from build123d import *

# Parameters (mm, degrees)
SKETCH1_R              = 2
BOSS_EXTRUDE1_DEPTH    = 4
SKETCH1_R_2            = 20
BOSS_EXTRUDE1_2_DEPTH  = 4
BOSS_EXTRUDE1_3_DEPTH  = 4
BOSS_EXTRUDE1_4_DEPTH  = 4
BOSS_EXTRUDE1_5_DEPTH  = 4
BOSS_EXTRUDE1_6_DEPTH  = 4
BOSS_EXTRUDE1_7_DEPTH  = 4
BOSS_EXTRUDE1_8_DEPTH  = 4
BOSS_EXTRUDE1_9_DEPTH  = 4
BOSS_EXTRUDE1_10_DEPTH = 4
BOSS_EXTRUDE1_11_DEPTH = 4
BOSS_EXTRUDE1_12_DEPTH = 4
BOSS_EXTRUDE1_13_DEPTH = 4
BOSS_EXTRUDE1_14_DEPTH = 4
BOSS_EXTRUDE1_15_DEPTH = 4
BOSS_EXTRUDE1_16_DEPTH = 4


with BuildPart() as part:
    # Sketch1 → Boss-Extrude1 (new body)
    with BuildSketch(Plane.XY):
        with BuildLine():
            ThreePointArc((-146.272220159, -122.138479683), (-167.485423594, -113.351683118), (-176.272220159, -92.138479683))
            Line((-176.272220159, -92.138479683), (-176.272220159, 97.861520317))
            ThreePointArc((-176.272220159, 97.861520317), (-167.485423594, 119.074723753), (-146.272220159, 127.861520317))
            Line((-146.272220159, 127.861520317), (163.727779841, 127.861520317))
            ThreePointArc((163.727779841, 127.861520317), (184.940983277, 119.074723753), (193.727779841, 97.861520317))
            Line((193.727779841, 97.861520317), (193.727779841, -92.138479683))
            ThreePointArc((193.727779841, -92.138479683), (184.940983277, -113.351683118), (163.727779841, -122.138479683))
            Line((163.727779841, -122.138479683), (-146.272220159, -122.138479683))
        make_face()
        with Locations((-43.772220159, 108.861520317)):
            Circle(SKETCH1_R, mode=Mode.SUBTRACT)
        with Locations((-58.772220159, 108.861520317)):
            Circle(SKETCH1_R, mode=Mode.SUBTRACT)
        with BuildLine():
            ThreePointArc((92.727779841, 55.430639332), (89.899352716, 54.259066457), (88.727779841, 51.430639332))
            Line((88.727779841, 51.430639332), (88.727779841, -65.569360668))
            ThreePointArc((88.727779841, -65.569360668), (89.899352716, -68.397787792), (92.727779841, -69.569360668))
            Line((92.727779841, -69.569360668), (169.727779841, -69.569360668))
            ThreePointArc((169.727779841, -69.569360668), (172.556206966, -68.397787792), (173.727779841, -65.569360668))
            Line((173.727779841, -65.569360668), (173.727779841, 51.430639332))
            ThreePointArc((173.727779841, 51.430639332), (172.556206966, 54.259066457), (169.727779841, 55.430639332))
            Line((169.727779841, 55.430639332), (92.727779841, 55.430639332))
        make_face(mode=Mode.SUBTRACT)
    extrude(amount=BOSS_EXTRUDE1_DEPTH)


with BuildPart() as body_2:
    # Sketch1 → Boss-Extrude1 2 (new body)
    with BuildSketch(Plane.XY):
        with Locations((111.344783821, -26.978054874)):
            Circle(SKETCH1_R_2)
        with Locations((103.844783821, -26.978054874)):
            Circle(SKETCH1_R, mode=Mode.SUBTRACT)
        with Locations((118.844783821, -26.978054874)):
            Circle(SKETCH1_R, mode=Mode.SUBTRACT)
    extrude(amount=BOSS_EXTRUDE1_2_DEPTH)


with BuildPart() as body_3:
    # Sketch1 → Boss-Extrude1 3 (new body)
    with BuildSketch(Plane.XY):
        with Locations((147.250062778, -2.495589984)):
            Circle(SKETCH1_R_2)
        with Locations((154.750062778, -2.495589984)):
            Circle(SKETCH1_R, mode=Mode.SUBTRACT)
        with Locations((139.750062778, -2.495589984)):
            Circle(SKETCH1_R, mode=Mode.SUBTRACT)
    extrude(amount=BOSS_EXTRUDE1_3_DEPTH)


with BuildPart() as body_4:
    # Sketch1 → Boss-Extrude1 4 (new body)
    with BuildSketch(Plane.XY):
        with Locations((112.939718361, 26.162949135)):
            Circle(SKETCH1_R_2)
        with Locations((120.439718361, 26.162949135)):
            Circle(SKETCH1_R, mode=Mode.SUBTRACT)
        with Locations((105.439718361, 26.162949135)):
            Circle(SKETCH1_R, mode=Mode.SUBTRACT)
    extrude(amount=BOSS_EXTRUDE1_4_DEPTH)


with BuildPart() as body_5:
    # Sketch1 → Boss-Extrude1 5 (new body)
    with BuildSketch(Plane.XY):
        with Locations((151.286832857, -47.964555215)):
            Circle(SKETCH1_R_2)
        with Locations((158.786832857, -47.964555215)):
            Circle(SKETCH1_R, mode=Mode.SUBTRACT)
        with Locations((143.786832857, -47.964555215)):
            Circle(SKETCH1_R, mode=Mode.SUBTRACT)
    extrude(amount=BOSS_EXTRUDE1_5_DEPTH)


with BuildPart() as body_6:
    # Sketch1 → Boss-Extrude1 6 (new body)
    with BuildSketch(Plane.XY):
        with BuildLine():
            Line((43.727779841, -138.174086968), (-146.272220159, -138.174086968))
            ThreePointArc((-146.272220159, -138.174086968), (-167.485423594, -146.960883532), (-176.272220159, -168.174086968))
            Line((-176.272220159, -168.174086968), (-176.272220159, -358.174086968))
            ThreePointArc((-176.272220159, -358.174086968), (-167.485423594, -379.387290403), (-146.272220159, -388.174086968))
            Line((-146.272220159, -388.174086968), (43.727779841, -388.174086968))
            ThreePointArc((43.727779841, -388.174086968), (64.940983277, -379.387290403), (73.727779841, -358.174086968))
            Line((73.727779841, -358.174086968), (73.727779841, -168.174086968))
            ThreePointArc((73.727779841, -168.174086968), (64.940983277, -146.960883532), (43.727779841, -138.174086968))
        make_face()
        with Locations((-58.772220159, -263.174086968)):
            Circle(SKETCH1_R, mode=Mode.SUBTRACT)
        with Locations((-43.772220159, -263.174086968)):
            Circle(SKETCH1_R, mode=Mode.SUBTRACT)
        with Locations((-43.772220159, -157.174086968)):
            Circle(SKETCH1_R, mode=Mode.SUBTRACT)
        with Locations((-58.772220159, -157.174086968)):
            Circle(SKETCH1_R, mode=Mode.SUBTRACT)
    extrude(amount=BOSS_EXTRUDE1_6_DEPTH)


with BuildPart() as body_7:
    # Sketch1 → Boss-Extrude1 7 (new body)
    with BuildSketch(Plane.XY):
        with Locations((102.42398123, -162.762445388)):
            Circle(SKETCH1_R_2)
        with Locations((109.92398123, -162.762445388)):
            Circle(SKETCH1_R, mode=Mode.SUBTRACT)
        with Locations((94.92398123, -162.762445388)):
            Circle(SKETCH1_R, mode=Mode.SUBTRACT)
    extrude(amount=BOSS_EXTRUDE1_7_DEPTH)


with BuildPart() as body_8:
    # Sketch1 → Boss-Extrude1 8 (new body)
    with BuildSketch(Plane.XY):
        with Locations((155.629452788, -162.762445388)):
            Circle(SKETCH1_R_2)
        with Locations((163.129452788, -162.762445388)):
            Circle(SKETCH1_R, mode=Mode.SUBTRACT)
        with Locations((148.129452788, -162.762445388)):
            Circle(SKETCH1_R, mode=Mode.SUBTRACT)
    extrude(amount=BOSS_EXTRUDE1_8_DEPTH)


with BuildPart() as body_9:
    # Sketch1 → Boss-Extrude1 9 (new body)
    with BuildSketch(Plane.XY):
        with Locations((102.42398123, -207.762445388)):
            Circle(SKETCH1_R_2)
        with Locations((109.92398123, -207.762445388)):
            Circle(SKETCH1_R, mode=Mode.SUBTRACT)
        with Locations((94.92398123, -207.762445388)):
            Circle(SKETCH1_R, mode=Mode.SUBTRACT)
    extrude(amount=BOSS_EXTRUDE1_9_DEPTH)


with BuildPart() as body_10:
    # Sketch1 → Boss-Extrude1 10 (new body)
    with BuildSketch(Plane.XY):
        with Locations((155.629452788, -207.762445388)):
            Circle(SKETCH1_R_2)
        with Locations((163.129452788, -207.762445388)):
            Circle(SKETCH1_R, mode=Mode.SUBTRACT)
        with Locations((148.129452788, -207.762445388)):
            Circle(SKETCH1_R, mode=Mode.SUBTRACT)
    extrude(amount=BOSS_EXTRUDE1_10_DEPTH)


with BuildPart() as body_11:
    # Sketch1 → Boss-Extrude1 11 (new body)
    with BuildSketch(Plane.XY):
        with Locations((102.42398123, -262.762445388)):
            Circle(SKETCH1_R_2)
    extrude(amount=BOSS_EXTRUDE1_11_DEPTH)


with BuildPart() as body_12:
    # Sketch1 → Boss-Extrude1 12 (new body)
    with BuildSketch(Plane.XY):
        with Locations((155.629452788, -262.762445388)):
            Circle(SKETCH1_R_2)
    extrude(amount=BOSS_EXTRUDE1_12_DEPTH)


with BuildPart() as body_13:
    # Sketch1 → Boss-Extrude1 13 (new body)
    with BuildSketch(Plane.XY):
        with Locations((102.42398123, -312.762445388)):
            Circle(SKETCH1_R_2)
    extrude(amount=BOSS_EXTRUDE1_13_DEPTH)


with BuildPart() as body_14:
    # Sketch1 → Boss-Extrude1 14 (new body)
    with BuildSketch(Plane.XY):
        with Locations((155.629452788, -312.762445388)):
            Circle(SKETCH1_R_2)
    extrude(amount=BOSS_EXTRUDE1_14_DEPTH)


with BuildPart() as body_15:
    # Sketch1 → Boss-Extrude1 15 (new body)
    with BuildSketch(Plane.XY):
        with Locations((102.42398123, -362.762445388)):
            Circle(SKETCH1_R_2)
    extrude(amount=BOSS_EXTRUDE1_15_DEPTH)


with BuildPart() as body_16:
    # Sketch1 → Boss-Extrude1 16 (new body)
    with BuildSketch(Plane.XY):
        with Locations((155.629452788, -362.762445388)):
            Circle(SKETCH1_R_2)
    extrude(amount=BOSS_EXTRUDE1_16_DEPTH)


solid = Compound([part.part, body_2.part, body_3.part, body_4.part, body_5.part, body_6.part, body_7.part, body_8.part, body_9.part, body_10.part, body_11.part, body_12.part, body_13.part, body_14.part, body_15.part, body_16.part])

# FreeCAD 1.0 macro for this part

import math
import FreeCAD as App
import Part
import Sketcher
from FreeCAD import Vector

doc = App.newDocument("Part")
body = doc.addObject("PartDesign::Body", "Body")

# Sketch on XY plane
sketch1 = body.newObject("Sketcher::SketchObject", "Sketch")
sketch1.AttachmentSupport = (doc.getObject("XY_Plane"), [""])
sketch1.MapMode = "FlatFace"
sketch1.addGeometry(Part.ArcOfCircle(Part.Circle(Vector(-146.27222, -92.13848, 0), Vector(0, 0, 1), 30), math.radians(-180), math.radians(-90)), False)
sketch1.addGeometry(Part.LineSegment(Vector(-146.27222, -122.13848, 0), Vector(163.72778, -122.13848, 0)), False)
sketch1.addGeometry(Part.ArcOfCircle(Part.Circle(Vector(163.72778, -92.13848, 0), Vector(0, 0, 1), 30), math.radians(-90), math.radians(0)), False)
sketch1.addGeometry(Part.LineSegment(Vector(193.72778, -92.13848, 0), Vector(193.72778, 97.86152, 0)), False)
sketch1.addGeometry(Part.ArcOfCircle(Part.Circle(Vector(163.72778, 97.86152, 0), Vector(0, 0, 1), 30), math.radians(0), math.radians(90)), False)
sketch1.addGeometry(Part.LineSegment(Vector(163.72778, 127.86152, 0), Vector(-146.27222, 127.86152, 0)), False)
sketch1.addGeometry(Part.ArcOfCircle(Part.Circle(Vector(-146.27222, 97.86152, 0), Vector(0, 0, 1), 30), math.radians(90), math.radians(180)), False)
sketch1.addGeometry(Part.LineSegment(Vector(-176.27222, 97.86152, 0), Vector(-176.27222, -92.13848, 0)), False)
sketch1.addGeometry(Part.LineSegment(Vector(92.72778, 55.430639, 0), Vector(169.72778, 55.430639, 0)), False)
sketch1.addGeometry(Part.ArcOfCircle(Part.Circle(Vector(169.72778, 51.430639, 0), Vector(0, 0, 1), 4), math.radians(0), math.radians(90)), False)
sketch1.addGeometry(Part.LineSegment(Vector(173.72778, 51.430639, 0), Vector(173.72778, -65.569361, 0)), False)
sketch1.addGeometry(Part.ArcOfCircle(Part.Circle(Vector(169.72778, -65.569361, 0), Vector(0, 0, 1), 4), math.radians(-90), math.radians(0)), False)
sketch1.addGeometry(Part.LineSegment(Vector(169.72778, -69.569361, 0), Vector(92.72778, -69.569361, 0)), False)
sketch1.addGeometry(Part.ArcOfCircle(Part.Circle(Vector(92.72778, -65.569361, 0), Vector(0, 0, 1), 4), math.radians(-180), math.radians(-90)), False)
sketch1.addGeometry(Part.LineSegment(Vector(88.72778, -65.569361, 0), Vector(88.72778, 51.430639, 0)), False)
sketch1.addGeometry(Part.ArcOfCircle(Part.Circle(Vector(92.72778, 51.430639, 0), Vector(0, 0, 1), 4), math.radians(90), math.radians(180)), False)
sketch1.addGeometry(Part.Circle(Vector(-43.77222, 108.86152, 0), Vector(0, 0, 1), 2), False)
sketch1.addGeometry(Part.Circle(Vector(-58.77222, 108.86152, 0), Vector(0, 0, 1), 2), False)
sketch1.addConstraint(Sketcher.Constraint("Tangent", 0, 2, 1, 1))
sketch1.addConstraint(Sketcher.Constraint("Tangent", 1, 2, 2, 1))
sketch1.addConstraint(Sketcher.Constraint("Tangent", 2, 2, 3, 1))
sketch1.addConstraint(Sketcher.Constraint("Tangent", 3, 2, 4, 1))
sketch1.addConstraint(Sketcher.Constraint("Tangent", 4, 2, 5, 1))
sketch1.addConstraint(Sketcher.Constraint("Tangent", 5, 2, 6, 1))
sketch1.addConstraint(Sketcher.Constraint("Tangent", 6, 2, 7, 1))
sketch1.addConstraint(Sketcher.Constraint("Tangent", 7, 2, 0, 1))
sketch1.addConstraint(Sketcher.Constraint("Tangent", 8, 2, 9, 2))
sketch1.addConstraint(Sketcher.Constraint("Tangent", 9, 1, 10, 1))
sketch1.addConstraint(Sketcher.Constraint("Tangent", 10, 2, 11, 2))
sketch1.addConstraint(Sketcher.Constraint("Tangent", 11, 1, 12, 1))
sketch1.addConstraint(Sketcher.Constraint("Tangent", 12, 2, 13, 2))
sketch1.addConstraint(Sketcher.Constraint("Tangent", 13, 1, 14, 1))
sketch1.addConstraint(Sketcher.Constraint("Tangent", 14, 2, 15, 2))
sketch1.addConstraint(Sketcher.Constraint("Tangent", 15, 1, 8, 1))
sketch1.addConstraint(Sketcher.Constraint("Horizontal", 1))
sketch1.addConstraint(Sketcher.Constraint("Vertical", 3))
sketch1.addConstraint(Sketcher.Constraint("Horizontal", 5))
sketch1.addConstraint(Sketcher.Constraint("Vertical", 7))
sketch1.addConstraint(Sketcher.Constraint("Horizontal", 8))
sketch1.addConstraint(Sketcher.Constraint("Vertical", 10))
sketch1.addConstraint(Sketcher.Constraint("Horizontal", 12))
sketch1.addConstraint(Sketcher.Constraint("Vertical", 14))
sketch1.addConstraint(Sketcher.Constraint("Equal", 0, 2))
sketch1.addConstraint(Sketcher.Constraint("Equal", 2, 4))
sketch1.addConstraint(Sketcher.Constraint("Equal", 4, 6))
sketch1.addConstraint(Sketcher.Constraint("Equal", 9, 11))
sketch1.addConstraint(Sketcher.Constraint("Equal", 11, 13))
sketch1.addConstraint(Sketcher.Constraint("Equal", 13, 15))
sketch1.addConstraint(Sketcher.Constraint("Equal", 16, 17))
sketch1.addConstraint(Sketcher.Constraint("Horizontal", 16, 3, 17, 3))
sketch1.addConstraint(Sketcher.Constraint("Diameter", 16, 4.0))
sketch1.addConstraint(Sketcher.Constraint("Radius", 0, 30.0))
sketch1.addConstraint(Sketcher.Constraint("Radius", 9, 4.0))
sketch1.addConstraint(Sketcher.Constraint("DistanceX", 1, 1, 1, 2, 310.0))
sketch1.addConstraint(Sketcher.Constraint("DistanceX", 8, 1, 8, 2, 77.0))
sketch1.addConstraint(Sketcher.Constraint("DistanceY", 3, 1, 3, 2, 190.0))
sketch1.addConstraint(Sketcher.Constraint("DistanceY", 10, 2, 10, 1, 117.0))
sketch1.addConstraint(Sketcher.Constraint("DistanceX", 4, 3, 9, 3, 6.0))
sketch1.addConstraint(Sketcher.Constraint("DistanceY", 6, 3, 16, 3, 11.0))
sketch1.addConstraint(Sketcher.Constraint("DistanceX", 17, 3, 16, 3, 15.0))
sketch1.addConstraint(Sketcher.Constraint("DistanceX", 6, 3, 16, 3, 102.5))
sketch1.addConstraint(Sketcher.Constraint("DistanceX", 0, 3, -1, 1, 146.27222))
sketch1.addConstraint(Sketcher.Constraint("DistanceY", 0, 3, -1, 1, 92.13848))
sketch1.addConstraint(Sketcher.Constraint("DistanceY", -1, 1, 9, 3, 51.430639))
pad1 = body.newObject("PartDesign::Pad", "Pad")
pad1.Profile = sketch1
pad1.Length = 4
body2 = doc.addObject("PartDesign::Body", "Body001")

# Sketch on XY plane
sketch2 = body2.newObject("Sketcher::SketchObject", "Sketch001")
sketch2.AttachmentSupport = (doc.getObject("XY_Plane001"), [""])
sketch2.MapMode = "FlatFace"
sketch2.addGeometry(Part.Circle(Vector(111.344784, -26.978055, 0), Vector(0, 0, 1), 20), False)
sketch2.addGeometry(Part.Circle(Vector(103.844784, -26.978055, 0), Vector(0, 0, 1), 2), False)
sketch2.addGeometry(Part.Circle(Vector(118.844784, -26.978055, 0), Vector(0, 0, 1), 2), False)
sketch2.addConstraint(Sketcher.Constraint("Equal", 1, 2))
sketch2.addConstraint(Sketcher.Constraint("Horizontal", 0, 3, 1, 3))
sketch2.addConstraint(Sketcher.Constraint("Horizontal", 1, 3, 2, 3))
sketch2.addConstraint(Sketcher.Constraint("Diameter", 0, 40.0))
sketch2.addConstraint(Sketcher.Constraint("Diameter", 1, 4.0))
sketch2.addConstraint(Sketcher.Constraint("DistanceX", 1, 3, 2, 3, 15.0))
sketch2.addConstraint(Sketcher.Constraint("DistanceX", 1, 3, 0, 3, 7.5))
sketch2.addConstraint(Sketcher.Constraint("DistanceX", -1, 1, 0, 3, 111.344784))
sketch2.addConstraint(Sketcher.Constraint("DistanceY", 0, 3, -1, 1, 26.978055))
pad2 = body2.newObject("PartDesign::Pad", "Pad001")
pad2.Profile = sketch2
pad2.Length = 4
body3 = doc.addObject("PartDesign::Body", "Body002")

# Sketch on XY plane
sketch3 = body3.newObject("Sketcher::SketchObject", "Sketch002")
sketch3.AttachmentSupport = (doc.getObject("XY_Plane002"), [""])
sketch3.MapMode = "FlatFace"
sketch3.addGeometry(Part.Circle(Vector(147.250063, -2.49559, 0), Vector(0, 0, 1), 20), False)
sketch3.addGeometry(Part.Circle(Vector(139.750063, -2.49559, 0), Vector(0, 0, 1), 2), False)
sketch3.addGeometry(Part.Circle(Vector(154.750063, -2.49559, 0), Vector(0, 0, 1), 2), False)
sketch3.addConstraint(Sketcher.Constraint("Equal", 1, 2))
sketch3.addConstraint(Sketcher.Constraint("Horizontal", 0, 3, 1, 3))
sketch3.addConstraint(Sketcher.Constraint("Horizontal", 1, 3, 2, 3))
sketch3.addConstraint(Sketcher.Constraint("Diameter", 0, 40.0))
sketch3.addConstraint(Sketcher.Constraint("Diameter", 1, 4.0))
sketch3.addConstraint(Sketcher.Constraint("DistanceX", 1, 3, 2, 3, 15.0))
sketch3.addConstraint(Sketcher.Constraint("DistanceX", 1, 3, 0, 3, 7.5))
sketch3.addConstraint(Sketcher.Constraint("DistanceY", 0, 3, -1, 1, 2.49559))
sketch3.addConstraint(Sketcher.Constraint("DistanceX", -1, 1, 0, 3, 147.250063))
pad3 = body3.newObject("PartDesign::Pad", "Pad002")
pad3.Profile = sketch3
pad3.Length = 4
body4 = doc.addObject("PartDesign::Body", "Body003")

# Sketch on XY plane
sketch4 = body4.newObject("Sketcher::SketchObject", "Sketch003")
sketch4.AttachmentSupport = (doc.getObject("XY_Plane003"), [""])
sketch4.MapMode = "FlatFace"
sketch4.addGeometry(Part.Circle(Vector(112.939718, 26.162949, 0), Vector(0, 0, 1), 20), False)
sketch4.addGeometry(Part.Circle(Vector(105.439718, 26.162949, 0), Vector(0, 0, 1), 2), False)
sketch4.addGeometry(Part.Circle(Vector(120.439718, 26.162949, 0), Vector(0, 0, 1), 2), False)
sketch4.addConstraint(Sketcher.Constraint("Equal", 1, 2))
sketch4.addConstraint(Sketcher.Constraint("Horizontal", 0, 3, 1, 3))
sketch4.addConstraint(Sketcher.Constraint("Horizontal", 1, 3, 2, 3))
sketch4.addConstraint(Sketcher.Constraint("Diameter", 0, 40.0))
sketch4.addConstraint(Sketcher.Constraint("Diameter", 1, 4.0))
sketch4.addConstraint(Sketcher.Constraint("DistanceX", 1, 3, 2, 3, 15.0))
sketch4.addConstraint(Sketcher.Constraint("DistanceX", 1, 3, 0, 3, 7.5))
sketch4.addConstraint(Sketcher.Constraint("DistanceX", -1, 1, 0, 3, 112.939718))
sketch4.addConstraint(Sketcher.Constraint("DistanceY", -1, 1, 0, 3, 26.162949))
pad4 = body4.newObject("PartDesign::Pad", "Pad003")
pad4.Profile = sketch4
pad4.Length = 4
body5 = doc.addObject("PartDesign::Body", "Body004")

# Sketch on XY plane
sketch5 = body5.newObject("Sketcher::SketchObject", "Sketch004")
sketch5.AttachmentSupport = (doc.getObject("XY_Plane004"), [""])
sketch5.MapMode = "FlatFace"
sketch5.addGeometry(Part.Circle(Vector(151.286833, -47.964555, 0), Vector(0, 0, 1), 20), False)
sketch5.addGeometry(Part.Circle(Vector(143.786833, -47.964555, 0), Vector(0, 0, 1), 2), False)
sketch5.addGeometry(Part.Circle(Vector(158.786833, -47.964555, 0), Vector(0, 0, 1), 2), False)
sketch5.addConstraint(Sketcher.Constraint("Equal", 1, 2))
sketch5.addConstraint(Sketcher.Constraint("Horizontal", 0, 3, 1, 3))
sketch5.addConstraint(Sketcher.Constraint("Horizontal", 1, 3, 2, 3))
sketch5.addConstraint(Sketcher.Constraint("Diameter", 0, 40.0))
sketch5.addConstraint(Sketcher.Constraint("Diameter", 1, 4.0))
sketch5.addConstraint(Sketcher.Constraint("DistanceX", 1, 3, 2, 3, 15.0))
sketch5.addConstraint(Sketcher.Constraint("DistanceX", 1, 3, 0, 3, 7.5))
sketch5.addConstraint(Sketcher.Constraint("DistanceX", -1, 1, 0, 3, 151.286833))
sketch5.addConstraint(Sketcher.Constraint("DistanceY", 0, 3, -1, 1, 47.964555))
pad5 = body5.newObject("PartDesign::Pad", "Pad004")
pad5.Profile = sketch5
pad5.Length = 4
body6 = doc.addObject("PartDesign::Body", "Body005")

# Sketch on XY plane
sketch6 = body6.newObject("Sketcher::SketchObject", "Sketch005")
sketch6.AttachmentSupport = (doc.getObject("XY_Plane005"), [""])
sketch6.MapMode = "FlatFace"
sketch6.addGeometry(Part.LineSegment(Vector(43.72778, -138.174087, 0), Vector(-146.27222, -138.174087, 0)), False)
sketch6.addGeometry(Part.ArcOfCircle(Part.Circle(Vector(-146.27222, -168.174087, 0), Vector(0, 0, 1), 30), math.radians(90), math.radians(180)), False)
sketch6.addGeometry(Part.LineSegment(Vector(-176.27222, -168.174087, 0), Vector(-176.27222, -358.174087, 0)), False)
sketch6.addGeometry(Part.ArcOfCircle(Part.Circle(Vector(-146.27222, -358.174087, 0), Vector(0, 0, 1), 30), math.radians(-180), math.radians(-90)), False)
sketch6.addGeometry(Part.LineSegment(Vector(-146.27222, -388.174087, 0), Vector(43.72778, -388.174087, 0)), False)
sketch6.addGeometry(Part.ArcOfCircle(Part.Circle(Vector(43.72778, -358.174087, 0), Vector(0, 0, 1), 30), math.radians(-90), math.radians(0)), False)
sketch6.addGeometry(Part.LineSegment(Vector(73.72778, -358.174087, 0), Vector(73.72778, -168.174087, 0)), False)
sketch6.addGeometry(Part.ArcOfCircle(Part.Circle(Vector(43.72778, -168.174087, 0), Vector(0, 0, 1), 30), math.radians(0), math.radians(90)), False)
sketch6.addGeometry(Part.Circle(Vector(-58.77222, -263.174087, 0), Vector(0, 0, 1), 2), False)
sketch6.addGeometry(Part.Circle(Vector(-43.77222, -263.174087, 0), Vector(0, 0, 1), 2), False)
sketch6.addGeometry(Part.Circle(Vector(-58.77222, -157.174087, 0), Vector(0, 0, 1), 2), False)
sketch6.addGeometry(Part.Circle(Vector(-43.77222, -157.174087, 0), Vector(0, 0, 1), 2), False)
sketch6.addConstraint(Sketcher.Constraint("Tangent", 0, 2, 1, 1))
sketch6.addConstraint(Sketcher.Constraint("Tangent", 1, 2, 2, 1))
sketch6.addConstraint(Sketcher.Constraint("Tangent", 2, 2, 3, 1))
sketch6.addConstraint(Sketcher.Constraint("Tangent", 3, 2, 4, 1))
sketch6.addConstraint(Sketcher.Constraint("Tangent", 4, 2, 5, 1))
sketch6.addConstraint(Sketcher.Constraint("Tangent", 5, 2, 6, 1))
sketch6.addConstraint(Sketcher.Constraint("Tangent", 6, 2, 7, 1))
sketch6.addConstraint(Sketcher.Constraint("Tangent", 7, 2, 0, 1))
sketch6.addConstraint(Sketcher.Constraint("Horizontal", 0))
sketch6.addConstraint(Sketcher.Constraint("Vertical", 2))
sketch6.addConstraint(Sketcher.Constraint("Horizontal", 4))
sketch6.addConstraint(Sketcher.Constraint("Vertical", 6))
sketch6.addConstraint(Sketcher.Constraint("Equal", 1, 3))
sketch6.addConstraint(Sketcher.Constraint("Equal", 3, 5))
sketch6.addConstraint(Sketcher.Constraint("Equal", 5, 7))
sketch6.addConstraint(Sketcher.Constraint("Equal", 8, 9))
sketch6.addConstraint(Sketcher.Constraint("Equal", 9, 10))
sketch6.addConstraint(Sketcher.Constraint("Equal", 10, 11))
sketch6.addConstraint(Sketcher.Constraint("Horizontal", 8, 3, 9, 3))
sketch6.addConstraint(Sketcher.Constraint("Horizontal", 10, 3, 11, 3))
sketch6.addConstraint(Sketcher.Constraint("Vertical", 8, 3, 10, 3))
sketch6.addConstraint(Sketcher.Constraint("Vertical", 9, 3, 11, 3))
sketch6.addConstraint(Sketcher.Constraint("Equal", 4, 2))
sketch6.addConstraint(Sketcher.Constraint("Diameter", 8, 4.0))
sketch6.addConstraint(Sketcher.Constraint("Radius", 1, 30.0))
sketch6.addConstraint(Sketcher.Constraint("DistanceX", 0, 2, 0, 1, 190.0))
sketch6.addConstraint(Sketcher.Constraint("DistanceY", 3, 3, 8, 3, 95.0))
sketch6.addConstraint(Sketcher.Constraint("DistanceX", 8, 3, 9, 3, 15.0))
sketch6.addConstraint(Sketcher.Constraint("DistanceY", 1, 3, 10, 3, 11.0))
sketch6.addConstraint(Sketcher.Constraint("DistanceX", 3, 3, 8, 3, 87.5))
sketch6.addConstraint(Sketcher.Constraint("DistanceX", 1, 3, -1, 1, 146.27222))
sketch6.addConstraint(Sketcher.Constraint("DistanceY", 1, 3, -1, 1, 168.174087))
pad6 = body6.newObject("PartDesign::Pad", "Pad005")
pad6.Profile = sketch6
pad6.Length = 4
body7 = doc.addObject("PartDesign::Body", "Body006")

# Sketch on XY plane
sketch7 = body7.newObject("Sketcher::SketchObject", "Sketch006")
sketch7.AttachmentSupport = (doc.getObject("XY_Plane006"), [""])
sketch7.MapMode = "FlatFace"
sketch7.addGeometry(Part.Circle(Vector(102.423981, -162.762445, 0), Vector(0, 0, 1), 20), False)
sketch7.addGeometry(Part.Circle(Vector(94.923981, -162.762445, 0), Vector(0, 0, 1), 2), False)
sketch7.addGeometry(Part.Circle(Vector(109.923981, -162.762445, 0), Vector(0, 0, 1), 2), False)
sketch7.addConstraint(Sketcher.Constraint("Equal", 1, 2))
sketch7.addConstraint(Sketcher.Constraint("Horizontal", 0, 3, 1, 3))
sketch7.addConstraint(Sketcher.Constraint("Horizontal", 1, 3, 2, 3))
sketch7.addConstraint(Sketcher.Constraint("Diameter", 0, 40.0))
sketch7.addConstraint(Sketcher.Constraint("Diameter", 1, 4.0))
sketch7.addConstraint(Sketcher.Constraint("DistanceX", 1, 3, 2, 3, 15.0))
sketch7.addConstraint(Sketcher.Constraint("DistanceX", 1, 3, 0, 3, 7.5))
sketch7.addConstraint(Sketcher.Constraint("DistanceX", -1, 1, 0, 3, 102.423981))
sketch7.addConstraint(Sketcher.Constraint("DistanceY", 0, 3, -1, 1, 162.762445))
pad7 = body7.newObject("PartDesign::Pad", "Pad006")
pad7.Profile = sketch7
pad7.Length = 4
body8 = doc.addObject("PartDesign::Body", "Body007")

# Sketch on XY plane
sketch8 = body8.newObject("Sketcher::SketchObject", "Sketch007")
sketch8.AttachmentSupport = (doc.getObject("XY_Plane007"), [""])
sketch8.MapMode = "FlatFace"
sketch8.addGeometry(Part.Circle(Vector(155.629453, -162.762445, 0), Vector(0, 0, 1), 20), False)
sketch8.addGeometry(Part.Circle(Vector(148.129453, -162.762445, 0), Vector(0, 0, 1), 2), False)
sketch8.addGeometry(Part.Circle(Vector(163.129453, -162.762445, 0), Vector(0, 0, 1), 2), False)
sketch8.addConstraint(Sketcher.Constraint("Equal", 1, 2))
sketch8.addConstraint(Sketcher.Constraint("Horizontal", 0, 3, 1, 3))
sketch8.addConstraint(Sketcher.Constraint("Horizontal", 1, 3, 2, 3))
sketch8.addConstraint(Sketcher.Constraint("Diameter", 0, 40.0))
sketch8.addConstraint(Sketcher.Constraint("Diameter", 1, 4.0))
sketch8.addConstraint(Sketcher.Constraint("DistanceX", 1, 3, 2, 3, 15.0))
sketch8.addConstraint(Sketcher.Constraint("DistanceX", 1, 3, 0, 3, 7.5))
sketch8.addConstraint(Sketcher.Constraint("DistanceX", -1, 1, 0, 3, 155.629453))
sketch8.addConstraint(Sketcher.Constraint("DistanceY", 0, 3, -1, 1, 162.762445))
pad8 = body8.newObject("PartDesign::Pad", "Pad007")
pad8.Profile = sketch8
pad8.Length = 4
body9 = doc.addObject("PartDesign::Body", "Body008")

# Sketch on XY plane
sketch9 = body9.newObject("Sketcher::SketchObject", "Sketch008")
sketch9.AttachmentSupport = (doc.getObject("XY_Plane008"), [""])
sketch9.MapMode = "FlatFace"
sketch9.addGeometry(Part.Circle(Vector(102.423981, -207.762445, 0), Vector(0, 0, 1), 20), False)
sketch9.addGeometry(Part.Circle(Vector(94.923981, -207.762445, 0), Vector(0, 0, 1), 2), False)
sketch9.addGeometry(Part.Circle(Vector(109.923981, -207.762445, 0), Vector(0, 0, 1), 2), False)
sketch9.addConstraint(Sketcher.Constraint("Equal", 1, 2))
sketch9.addConstraint(Sketcher.Constraint("Horizontal", 0, 3, 1, 3))
sketch9.addConstraint(Sketcher.Constraint("Horizontal", 1, 3, 2, 3))
sketch9.addConstraint(Sketcher.Constraint("Diameter", 0, 40.0))
sketch9.addConstraint(Sketcher.Constraint("Diameter", 1, 4.0))
sketch9.addConstraint(Sketcher.Constraint("DistanceX", 1, 3, 2, 3, 15.0))
sketch9.addConstraint(Sketcher.Constraint("DistanceX", 1, 3, 0, 3, 7.5))
sketch9.addConstraint(Sketcher.Constraint("DistanceX", -1, 1, 0, 3, 102.423981))
sketch9.addConstraint(Sketcher.Constraint("DistanceY", 0, 3, -1, 1, 207.762445))
pad9 = body9.newObject("PartDesign::Pad", "Pad008")
pad9.Profile = sketch9
pad9.Length = 4
body10 = doc.addObject("PartDesign::Body", "Body009")

# Sketch on XY plane
sketch10 = body10.newObject("Sketcher::SketchObject", "Sketch009")
sketch10.AttachmentSupport = (doc.getObject("XY_Plane009"), [""])
sketch10.MapMode = "FlatFace"
sketch10.addGeometry(Part.Circle(Vector(155.629453, -207.762445, 0), Vector(0, 0, 1), 20), False)
sketch10.addGeometry(Part.Circle(Vector(148.129453, -207.762445, 0), Vector(0, 0, 1), 2), False)
sketch10.addGeometry(Part.Circle(Vector(163.129453, -207.762445, 0), Vector(0, 0, 1), 2), False)
sketch10.addConstraint(Sketcher.Constraint("Equal", 1, 2))
sketch10.addConstraint(Sketcher.Constraint("Horizontal", 0, 3, 1, 3))
sketch10.addConstraint(Sketcher.Constraint("Horizontal", 1, 3, 2, 3))
sketch10.addConstraint(Sketcher.Constraint("Diameter", 0, 40.0))
sketch10.addConstraint(Sketcher.Constraint("Diameter", 1, 4.0))
sketch10.addConstraint(Sketcher.Constraint("DistanceX", 1, 3, 2, 3, 15.0))
sketch10.addConstraint(Sketcher.Constraint("DistanceX", 1, 3, 0, 3, 7.5))
sketch10.addConstraint(Sketcher.Constraint("DistanceX", -1, 1, 0, 3, 155.629453))
sketch10.addConstraint(Sketcher.Constraint("DistanceY", 0, 3, -1, 1, 207.762445))
pad10 = body10.newObject("PartDesign::Pad", "Pad009")
pad10.Profile = sketch10
pad10.Length = 4
body11 = doc.addObject("PartDesign::Body", "Body010")

# Sketch on XY plane
sketch11 = body11.newObject("Sketcher::SketchObject", "Sketch010")
sketch11.AttachmentSupport = (doc.getObject("XY_Plane010"), [""])
sketch11.MapMode = "FlatFace"
sketch11.addGeometry(Part.Circle(Vector(102.423981, -262.762445, 0), Vector(0, 0, 1), 20), False)
sketch11.addConstraint(Sketcher.Constraint("Diameter", 0, 40.0))
sketch11.addConstraint(Sketcher.Constraint("DistanceX", -1, 1, 0, 3, 102.423981))
sketch11.addConstraint(Sketcher.Constraint("DistanceY", 0, 3, -1, 1, 262.762445))
pad11 = body11.newObject("PartDesign::Pad", "Pad010")
pad11.Profile = sketch11
pad11.Length = 4
body12 = doc.addObject("PartDesign::Body", "Body011")

# Sketch on XY plane
sketch12 = body12.newObject("Sketcher::SketchObject", "Sketch011")
sketch12.AttachmentSupport = (doc.getObject("XY_Plane011"), [""])
sketch12.MapMode = "FlatFace"
sketch12.addGeometry(Part.Circle(Vector(155.629453, -262.762445, 0), Vector(0, 0, 1), 20), False)
sketch12.addConstraint(Sketcher.Constraint("Diameter", 0, 40.0))
sketch12.addConstraint(Sketcher.Constraint("DistanceX", -1, 1, 0, 3, 155.629453))
sketch12.addConstraint(Sketcher.Constraint("DistanceY", 0, 3, -1, 1, 262.762445))
pad12 = body12.newObject("PartDesign::Pad", "Pad011")
pad12.Profile = sketch12
pad12.Length = 4
body13 = doc.addObject("PartDesign::Body", "Body012")

# Sketch on XY plane
sketch13 = body13.newObject("Sketcher::SketchObject", "Sketch012")
sketch13.AttachmentSupport = (doc.getObject("XY_Plane012"), [""])
sketch13.MapMode = "FlatFace"
sketch13.addGeometry(Part.Circle(Vector(102.423981, -312.762445, 0), Vector(0, 0, 1), 20), False)
sketch13.addConstraint(Sketcher.Constraint("Diameter", 0, 40.0))
sketch13.addConstraint(Sketcher.Constraint("DistanceX", -1, 1, 0, 3, 102.423981))
sketch13.addConstraint(Sketcher.Constraint("DistanceY", 0, 3, -1, 1, 312.762445))
pad13 = body13.newObject("PartDesign::Pad", "Pad012")
pad13.Profile = sketch13
pad13.Length = 4
body14 = doc.addObject("PartDesign::Body", "Body013")

# Sketch on XY plane
sketch14 = body14.newObject("Sketcher::SketchObject", "Sketch013")
sketch14.AttachmentSupport = (doc.getObject("XY_Plane013"), [""])
sketch14.MapMode = "FlatFace"
sketch14.addGeometry(Part.Circle(Vector(155.629453, -312.762445, 0), Vector(0, 0, 1), 20), False)
sketch14.addConstraint(Sketcher.Constraint("Diameter", 0, 40.0))
sketch14.addConstraint(Sketcher.Constraint("DistanceX", -1, 1, 0, 3, 155.629453))
sketch14.addConstraint(Sketcher.Constraint("DistanceY", 0, 3, -1, 1, 312.762445))
pad14 = body14.newObject("PartDesign::Pad", "Pad013")
pad14.Profile = sketch14
pad14.Length = 4
body15 = doc.addObject("PartDesign::Body", "Body014")

# Sketch on XY plane
sketch15 = body15.newObject("Sketcher::SketchObject", "Sketch014")
sketch15.AttachmentSupport = (doc.getObject("XY_Plane014"), [""])
sketch15.MapMode = "FlatFace"
sketch15.addGeometry(Part.Circle(Vector(102.423981, -362.762445, 0), Vector(0, 0, 1), 20), False)
sketch15.addConstraint(Sketcher.Constraint("Diameter", 0, 40.0))
sketch15.addConstraint(Sketcher.Constraint("DistanceX", -1, 1, 0, 3, 102.423981))
sketch15.addConstraint(Sketcher.Constraint("DistanceY", 0, 3, -1, 1, 362.762445))
pad15 = body15.newObject("PartDesign::Pad", "Pad014")
pad15.Profile = sketch15
pad15.Length = 4
body16 = doc.addObject("PartDesign::Body", "Body015")

# Sketch on XY plane
sketch16 = body16.newObject("Sketcher::SketchObject", "Sketch015")
sketch16.AttachmentSupport = (doc.getObject("XY_Plane015"), [""])
sketch16.MapMode = "FlatFace"
sketch16.addGeometry(Part.Circle(Vector(155.629453, -362.762445, 0), Vector(0, 0, 1), 20), False)
sketch16.addConstraint(Sketcher.Constraint("Diameter", 0, 40.0))
sketch16.addConstraint(Sketcher.Constraint("DistanceX", -1, 1, 0, 3, 155.629453))
sketch16.addConstraint(Sketcher.Constraint("DistanceY", 0, 3, -1, 1, 362.762445))
pad16 = body16.newObject("PartDesign::Pad", "Pad015")
pad16.Profile = sketch16
pad16.Length = 4

doc.recompute()
